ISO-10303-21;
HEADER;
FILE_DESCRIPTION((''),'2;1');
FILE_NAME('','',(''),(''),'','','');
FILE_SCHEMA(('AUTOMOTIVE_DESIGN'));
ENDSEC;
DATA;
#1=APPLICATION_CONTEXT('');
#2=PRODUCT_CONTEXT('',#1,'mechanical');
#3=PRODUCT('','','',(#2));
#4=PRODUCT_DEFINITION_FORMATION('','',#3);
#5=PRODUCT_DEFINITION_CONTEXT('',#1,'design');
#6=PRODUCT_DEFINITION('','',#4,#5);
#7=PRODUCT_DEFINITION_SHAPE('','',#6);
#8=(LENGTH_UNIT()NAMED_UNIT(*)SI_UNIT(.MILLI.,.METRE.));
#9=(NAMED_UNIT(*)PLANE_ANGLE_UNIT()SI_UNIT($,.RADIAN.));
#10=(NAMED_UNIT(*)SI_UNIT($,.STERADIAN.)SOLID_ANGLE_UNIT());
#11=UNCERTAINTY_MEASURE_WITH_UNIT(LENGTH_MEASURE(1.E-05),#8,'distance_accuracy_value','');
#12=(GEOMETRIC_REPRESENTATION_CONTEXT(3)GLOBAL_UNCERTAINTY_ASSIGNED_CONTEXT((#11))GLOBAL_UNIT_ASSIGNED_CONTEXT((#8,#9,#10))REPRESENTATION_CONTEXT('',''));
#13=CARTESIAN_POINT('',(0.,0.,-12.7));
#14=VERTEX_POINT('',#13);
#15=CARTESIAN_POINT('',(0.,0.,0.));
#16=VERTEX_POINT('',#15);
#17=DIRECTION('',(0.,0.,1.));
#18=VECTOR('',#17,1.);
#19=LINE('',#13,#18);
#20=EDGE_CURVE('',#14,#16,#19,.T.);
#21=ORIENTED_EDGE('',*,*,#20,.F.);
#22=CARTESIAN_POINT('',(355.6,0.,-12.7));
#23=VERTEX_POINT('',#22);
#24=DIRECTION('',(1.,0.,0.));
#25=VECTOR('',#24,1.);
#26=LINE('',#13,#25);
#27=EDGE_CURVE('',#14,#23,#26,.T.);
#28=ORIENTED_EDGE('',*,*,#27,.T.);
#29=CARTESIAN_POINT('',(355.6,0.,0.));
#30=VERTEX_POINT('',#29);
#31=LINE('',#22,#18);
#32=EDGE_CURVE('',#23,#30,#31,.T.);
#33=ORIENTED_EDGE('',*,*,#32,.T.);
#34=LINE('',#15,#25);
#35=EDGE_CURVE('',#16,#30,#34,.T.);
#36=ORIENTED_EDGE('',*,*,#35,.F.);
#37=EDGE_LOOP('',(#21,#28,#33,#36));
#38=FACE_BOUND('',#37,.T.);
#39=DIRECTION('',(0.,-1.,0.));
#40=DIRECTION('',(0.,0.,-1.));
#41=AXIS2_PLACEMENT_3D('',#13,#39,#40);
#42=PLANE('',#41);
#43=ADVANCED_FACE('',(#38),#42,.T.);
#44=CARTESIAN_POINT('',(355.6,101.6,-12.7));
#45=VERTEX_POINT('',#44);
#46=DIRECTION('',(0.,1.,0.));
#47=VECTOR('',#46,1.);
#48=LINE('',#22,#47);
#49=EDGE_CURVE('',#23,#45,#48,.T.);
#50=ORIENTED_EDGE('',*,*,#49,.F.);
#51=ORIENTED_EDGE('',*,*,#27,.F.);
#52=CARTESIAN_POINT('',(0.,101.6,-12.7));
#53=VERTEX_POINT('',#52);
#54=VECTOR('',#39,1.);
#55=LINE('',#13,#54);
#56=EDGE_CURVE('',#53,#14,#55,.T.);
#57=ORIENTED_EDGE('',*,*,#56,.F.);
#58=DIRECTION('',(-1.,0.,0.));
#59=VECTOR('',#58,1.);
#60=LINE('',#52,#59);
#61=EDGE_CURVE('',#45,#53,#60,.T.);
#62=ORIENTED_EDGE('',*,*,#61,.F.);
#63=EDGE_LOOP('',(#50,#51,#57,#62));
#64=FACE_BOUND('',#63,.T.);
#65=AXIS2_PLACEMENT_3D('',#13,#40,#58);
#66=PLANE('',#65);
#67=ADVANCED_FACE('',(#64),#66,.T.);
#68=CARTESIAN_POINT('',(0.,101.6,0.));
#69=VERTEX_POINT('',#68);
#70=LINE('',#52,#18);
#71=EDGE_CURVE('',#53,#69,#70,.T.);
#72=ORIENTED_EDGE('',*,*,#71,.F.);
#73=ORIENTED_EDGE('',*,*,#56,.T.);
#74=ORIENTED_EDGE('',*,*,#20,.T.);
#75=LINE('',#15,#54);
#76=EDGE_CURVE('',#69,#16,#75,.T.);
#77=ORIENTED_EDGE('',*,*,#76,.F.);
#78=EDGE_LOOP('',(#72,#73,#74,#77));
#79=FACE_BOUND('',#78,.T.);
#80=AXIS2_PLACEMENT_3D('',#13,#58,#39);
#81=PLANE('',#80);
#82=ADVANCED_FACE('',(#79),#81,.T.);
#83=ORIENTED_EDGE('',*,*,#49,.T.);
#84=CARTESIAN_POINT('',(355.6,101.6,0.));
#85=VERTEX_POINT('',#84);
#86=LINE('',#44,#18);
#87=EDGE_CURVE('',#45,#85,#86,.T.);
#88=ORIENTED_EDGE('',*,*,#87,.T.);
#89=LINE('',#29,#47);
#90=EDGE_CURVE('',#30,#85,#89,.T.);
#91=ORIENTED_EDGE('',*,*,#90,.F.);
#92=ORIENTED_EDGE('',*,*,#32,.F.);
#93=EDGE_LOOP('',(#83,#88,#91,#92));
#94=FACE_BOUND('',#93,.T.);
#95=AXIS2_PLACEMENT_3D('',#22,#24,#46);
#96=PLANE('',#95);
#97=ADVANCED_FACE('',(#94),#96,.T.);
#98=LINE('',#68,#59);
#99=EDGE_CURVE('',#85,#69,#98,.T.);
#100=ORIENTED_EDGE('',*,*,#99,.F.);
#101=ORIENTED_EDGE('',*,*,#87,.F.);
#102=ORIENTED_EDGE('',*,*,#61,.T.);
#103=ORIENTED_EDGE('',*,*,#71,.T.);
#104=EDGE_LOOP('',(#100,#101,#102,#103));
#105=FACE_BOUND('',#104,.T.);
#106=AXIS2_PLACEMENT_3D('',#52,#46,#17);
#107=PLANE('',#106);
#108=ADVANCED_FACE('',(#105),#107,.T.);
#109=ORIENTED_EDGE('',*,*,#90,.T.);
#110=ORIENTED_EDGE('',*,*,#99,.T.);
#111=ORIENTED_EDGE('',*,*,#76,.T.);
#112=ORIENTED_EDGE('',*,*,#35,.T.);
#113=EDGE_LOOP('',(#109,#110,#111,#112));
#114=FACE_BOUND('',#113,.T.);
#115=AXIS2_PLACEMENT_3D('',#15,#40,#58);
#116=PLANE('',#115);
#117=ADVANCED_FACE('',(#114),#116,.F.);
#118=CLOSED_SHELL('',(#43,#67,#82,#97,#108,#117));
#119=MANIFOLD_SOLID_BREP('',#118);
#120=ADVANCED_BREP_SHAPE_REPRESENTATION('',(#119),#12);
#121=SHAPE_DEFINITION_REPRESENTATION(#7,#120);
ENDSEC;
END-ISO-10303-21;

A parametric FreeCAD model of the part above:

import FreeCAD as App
import Part
import Sketcher
Q = App.Units.Quantity


def add_polygon(sketch, points):
    """Adds a closed chain of lines whose ends are joined by coincident constraints."""
    first, n = sketch.GeometryCount, len(points)
    for a, b in zip(points, points[1:] + points[:1]):
        sketch.addGeometry(Part.LineSegment(App.Vector(*a, 0), App.Vector(*b, 0)), False)
    for i in range(n):
        sketch.addConstraint(Sketcher.Constraint("Coincident", first + i, 2, first + (i + 1) % n, 1))

doc = App.newDocument("Part")
body = doc.addObject("PartDesign::Body", "Body")

sketch1 = body.newObject("Sketcher::SketchObject", "Sketch")
sketch1.AttachmentSupport = (doc.getObject("XY_Plane"), [""])
sketch1.MapMode = "FlatFace"
add_polygon(sketch1, [(0, 102), (0, 0), (356, 0), (356, 102)])
sketch1.addConstraint([
    Sketcher.Constraint("Vertical", 0),
    Sketcher.Constraint("Horizontal", 1),
    Sketcher.Constraint("Vertical", 2),
    Sketcher.Constraint("Horizontal", 3),
    Sketcher.Constraint("Coincident", 0, 2, -1, 1),
    Sketcher.Constraint("DistanceX", 1, 1, 1, 2, Q("14 in")),
    Sketcher.Constraint("DistanceY", 0, 2, 0, 1, Q("4 in")),
])
pad1 = body.newObject("PartDesign::Pad", "Pad")
pad1.Profile = sketch1
pad1.Length = Q("0.5 in")
pad1.Reversed = True

doc.recompute()
